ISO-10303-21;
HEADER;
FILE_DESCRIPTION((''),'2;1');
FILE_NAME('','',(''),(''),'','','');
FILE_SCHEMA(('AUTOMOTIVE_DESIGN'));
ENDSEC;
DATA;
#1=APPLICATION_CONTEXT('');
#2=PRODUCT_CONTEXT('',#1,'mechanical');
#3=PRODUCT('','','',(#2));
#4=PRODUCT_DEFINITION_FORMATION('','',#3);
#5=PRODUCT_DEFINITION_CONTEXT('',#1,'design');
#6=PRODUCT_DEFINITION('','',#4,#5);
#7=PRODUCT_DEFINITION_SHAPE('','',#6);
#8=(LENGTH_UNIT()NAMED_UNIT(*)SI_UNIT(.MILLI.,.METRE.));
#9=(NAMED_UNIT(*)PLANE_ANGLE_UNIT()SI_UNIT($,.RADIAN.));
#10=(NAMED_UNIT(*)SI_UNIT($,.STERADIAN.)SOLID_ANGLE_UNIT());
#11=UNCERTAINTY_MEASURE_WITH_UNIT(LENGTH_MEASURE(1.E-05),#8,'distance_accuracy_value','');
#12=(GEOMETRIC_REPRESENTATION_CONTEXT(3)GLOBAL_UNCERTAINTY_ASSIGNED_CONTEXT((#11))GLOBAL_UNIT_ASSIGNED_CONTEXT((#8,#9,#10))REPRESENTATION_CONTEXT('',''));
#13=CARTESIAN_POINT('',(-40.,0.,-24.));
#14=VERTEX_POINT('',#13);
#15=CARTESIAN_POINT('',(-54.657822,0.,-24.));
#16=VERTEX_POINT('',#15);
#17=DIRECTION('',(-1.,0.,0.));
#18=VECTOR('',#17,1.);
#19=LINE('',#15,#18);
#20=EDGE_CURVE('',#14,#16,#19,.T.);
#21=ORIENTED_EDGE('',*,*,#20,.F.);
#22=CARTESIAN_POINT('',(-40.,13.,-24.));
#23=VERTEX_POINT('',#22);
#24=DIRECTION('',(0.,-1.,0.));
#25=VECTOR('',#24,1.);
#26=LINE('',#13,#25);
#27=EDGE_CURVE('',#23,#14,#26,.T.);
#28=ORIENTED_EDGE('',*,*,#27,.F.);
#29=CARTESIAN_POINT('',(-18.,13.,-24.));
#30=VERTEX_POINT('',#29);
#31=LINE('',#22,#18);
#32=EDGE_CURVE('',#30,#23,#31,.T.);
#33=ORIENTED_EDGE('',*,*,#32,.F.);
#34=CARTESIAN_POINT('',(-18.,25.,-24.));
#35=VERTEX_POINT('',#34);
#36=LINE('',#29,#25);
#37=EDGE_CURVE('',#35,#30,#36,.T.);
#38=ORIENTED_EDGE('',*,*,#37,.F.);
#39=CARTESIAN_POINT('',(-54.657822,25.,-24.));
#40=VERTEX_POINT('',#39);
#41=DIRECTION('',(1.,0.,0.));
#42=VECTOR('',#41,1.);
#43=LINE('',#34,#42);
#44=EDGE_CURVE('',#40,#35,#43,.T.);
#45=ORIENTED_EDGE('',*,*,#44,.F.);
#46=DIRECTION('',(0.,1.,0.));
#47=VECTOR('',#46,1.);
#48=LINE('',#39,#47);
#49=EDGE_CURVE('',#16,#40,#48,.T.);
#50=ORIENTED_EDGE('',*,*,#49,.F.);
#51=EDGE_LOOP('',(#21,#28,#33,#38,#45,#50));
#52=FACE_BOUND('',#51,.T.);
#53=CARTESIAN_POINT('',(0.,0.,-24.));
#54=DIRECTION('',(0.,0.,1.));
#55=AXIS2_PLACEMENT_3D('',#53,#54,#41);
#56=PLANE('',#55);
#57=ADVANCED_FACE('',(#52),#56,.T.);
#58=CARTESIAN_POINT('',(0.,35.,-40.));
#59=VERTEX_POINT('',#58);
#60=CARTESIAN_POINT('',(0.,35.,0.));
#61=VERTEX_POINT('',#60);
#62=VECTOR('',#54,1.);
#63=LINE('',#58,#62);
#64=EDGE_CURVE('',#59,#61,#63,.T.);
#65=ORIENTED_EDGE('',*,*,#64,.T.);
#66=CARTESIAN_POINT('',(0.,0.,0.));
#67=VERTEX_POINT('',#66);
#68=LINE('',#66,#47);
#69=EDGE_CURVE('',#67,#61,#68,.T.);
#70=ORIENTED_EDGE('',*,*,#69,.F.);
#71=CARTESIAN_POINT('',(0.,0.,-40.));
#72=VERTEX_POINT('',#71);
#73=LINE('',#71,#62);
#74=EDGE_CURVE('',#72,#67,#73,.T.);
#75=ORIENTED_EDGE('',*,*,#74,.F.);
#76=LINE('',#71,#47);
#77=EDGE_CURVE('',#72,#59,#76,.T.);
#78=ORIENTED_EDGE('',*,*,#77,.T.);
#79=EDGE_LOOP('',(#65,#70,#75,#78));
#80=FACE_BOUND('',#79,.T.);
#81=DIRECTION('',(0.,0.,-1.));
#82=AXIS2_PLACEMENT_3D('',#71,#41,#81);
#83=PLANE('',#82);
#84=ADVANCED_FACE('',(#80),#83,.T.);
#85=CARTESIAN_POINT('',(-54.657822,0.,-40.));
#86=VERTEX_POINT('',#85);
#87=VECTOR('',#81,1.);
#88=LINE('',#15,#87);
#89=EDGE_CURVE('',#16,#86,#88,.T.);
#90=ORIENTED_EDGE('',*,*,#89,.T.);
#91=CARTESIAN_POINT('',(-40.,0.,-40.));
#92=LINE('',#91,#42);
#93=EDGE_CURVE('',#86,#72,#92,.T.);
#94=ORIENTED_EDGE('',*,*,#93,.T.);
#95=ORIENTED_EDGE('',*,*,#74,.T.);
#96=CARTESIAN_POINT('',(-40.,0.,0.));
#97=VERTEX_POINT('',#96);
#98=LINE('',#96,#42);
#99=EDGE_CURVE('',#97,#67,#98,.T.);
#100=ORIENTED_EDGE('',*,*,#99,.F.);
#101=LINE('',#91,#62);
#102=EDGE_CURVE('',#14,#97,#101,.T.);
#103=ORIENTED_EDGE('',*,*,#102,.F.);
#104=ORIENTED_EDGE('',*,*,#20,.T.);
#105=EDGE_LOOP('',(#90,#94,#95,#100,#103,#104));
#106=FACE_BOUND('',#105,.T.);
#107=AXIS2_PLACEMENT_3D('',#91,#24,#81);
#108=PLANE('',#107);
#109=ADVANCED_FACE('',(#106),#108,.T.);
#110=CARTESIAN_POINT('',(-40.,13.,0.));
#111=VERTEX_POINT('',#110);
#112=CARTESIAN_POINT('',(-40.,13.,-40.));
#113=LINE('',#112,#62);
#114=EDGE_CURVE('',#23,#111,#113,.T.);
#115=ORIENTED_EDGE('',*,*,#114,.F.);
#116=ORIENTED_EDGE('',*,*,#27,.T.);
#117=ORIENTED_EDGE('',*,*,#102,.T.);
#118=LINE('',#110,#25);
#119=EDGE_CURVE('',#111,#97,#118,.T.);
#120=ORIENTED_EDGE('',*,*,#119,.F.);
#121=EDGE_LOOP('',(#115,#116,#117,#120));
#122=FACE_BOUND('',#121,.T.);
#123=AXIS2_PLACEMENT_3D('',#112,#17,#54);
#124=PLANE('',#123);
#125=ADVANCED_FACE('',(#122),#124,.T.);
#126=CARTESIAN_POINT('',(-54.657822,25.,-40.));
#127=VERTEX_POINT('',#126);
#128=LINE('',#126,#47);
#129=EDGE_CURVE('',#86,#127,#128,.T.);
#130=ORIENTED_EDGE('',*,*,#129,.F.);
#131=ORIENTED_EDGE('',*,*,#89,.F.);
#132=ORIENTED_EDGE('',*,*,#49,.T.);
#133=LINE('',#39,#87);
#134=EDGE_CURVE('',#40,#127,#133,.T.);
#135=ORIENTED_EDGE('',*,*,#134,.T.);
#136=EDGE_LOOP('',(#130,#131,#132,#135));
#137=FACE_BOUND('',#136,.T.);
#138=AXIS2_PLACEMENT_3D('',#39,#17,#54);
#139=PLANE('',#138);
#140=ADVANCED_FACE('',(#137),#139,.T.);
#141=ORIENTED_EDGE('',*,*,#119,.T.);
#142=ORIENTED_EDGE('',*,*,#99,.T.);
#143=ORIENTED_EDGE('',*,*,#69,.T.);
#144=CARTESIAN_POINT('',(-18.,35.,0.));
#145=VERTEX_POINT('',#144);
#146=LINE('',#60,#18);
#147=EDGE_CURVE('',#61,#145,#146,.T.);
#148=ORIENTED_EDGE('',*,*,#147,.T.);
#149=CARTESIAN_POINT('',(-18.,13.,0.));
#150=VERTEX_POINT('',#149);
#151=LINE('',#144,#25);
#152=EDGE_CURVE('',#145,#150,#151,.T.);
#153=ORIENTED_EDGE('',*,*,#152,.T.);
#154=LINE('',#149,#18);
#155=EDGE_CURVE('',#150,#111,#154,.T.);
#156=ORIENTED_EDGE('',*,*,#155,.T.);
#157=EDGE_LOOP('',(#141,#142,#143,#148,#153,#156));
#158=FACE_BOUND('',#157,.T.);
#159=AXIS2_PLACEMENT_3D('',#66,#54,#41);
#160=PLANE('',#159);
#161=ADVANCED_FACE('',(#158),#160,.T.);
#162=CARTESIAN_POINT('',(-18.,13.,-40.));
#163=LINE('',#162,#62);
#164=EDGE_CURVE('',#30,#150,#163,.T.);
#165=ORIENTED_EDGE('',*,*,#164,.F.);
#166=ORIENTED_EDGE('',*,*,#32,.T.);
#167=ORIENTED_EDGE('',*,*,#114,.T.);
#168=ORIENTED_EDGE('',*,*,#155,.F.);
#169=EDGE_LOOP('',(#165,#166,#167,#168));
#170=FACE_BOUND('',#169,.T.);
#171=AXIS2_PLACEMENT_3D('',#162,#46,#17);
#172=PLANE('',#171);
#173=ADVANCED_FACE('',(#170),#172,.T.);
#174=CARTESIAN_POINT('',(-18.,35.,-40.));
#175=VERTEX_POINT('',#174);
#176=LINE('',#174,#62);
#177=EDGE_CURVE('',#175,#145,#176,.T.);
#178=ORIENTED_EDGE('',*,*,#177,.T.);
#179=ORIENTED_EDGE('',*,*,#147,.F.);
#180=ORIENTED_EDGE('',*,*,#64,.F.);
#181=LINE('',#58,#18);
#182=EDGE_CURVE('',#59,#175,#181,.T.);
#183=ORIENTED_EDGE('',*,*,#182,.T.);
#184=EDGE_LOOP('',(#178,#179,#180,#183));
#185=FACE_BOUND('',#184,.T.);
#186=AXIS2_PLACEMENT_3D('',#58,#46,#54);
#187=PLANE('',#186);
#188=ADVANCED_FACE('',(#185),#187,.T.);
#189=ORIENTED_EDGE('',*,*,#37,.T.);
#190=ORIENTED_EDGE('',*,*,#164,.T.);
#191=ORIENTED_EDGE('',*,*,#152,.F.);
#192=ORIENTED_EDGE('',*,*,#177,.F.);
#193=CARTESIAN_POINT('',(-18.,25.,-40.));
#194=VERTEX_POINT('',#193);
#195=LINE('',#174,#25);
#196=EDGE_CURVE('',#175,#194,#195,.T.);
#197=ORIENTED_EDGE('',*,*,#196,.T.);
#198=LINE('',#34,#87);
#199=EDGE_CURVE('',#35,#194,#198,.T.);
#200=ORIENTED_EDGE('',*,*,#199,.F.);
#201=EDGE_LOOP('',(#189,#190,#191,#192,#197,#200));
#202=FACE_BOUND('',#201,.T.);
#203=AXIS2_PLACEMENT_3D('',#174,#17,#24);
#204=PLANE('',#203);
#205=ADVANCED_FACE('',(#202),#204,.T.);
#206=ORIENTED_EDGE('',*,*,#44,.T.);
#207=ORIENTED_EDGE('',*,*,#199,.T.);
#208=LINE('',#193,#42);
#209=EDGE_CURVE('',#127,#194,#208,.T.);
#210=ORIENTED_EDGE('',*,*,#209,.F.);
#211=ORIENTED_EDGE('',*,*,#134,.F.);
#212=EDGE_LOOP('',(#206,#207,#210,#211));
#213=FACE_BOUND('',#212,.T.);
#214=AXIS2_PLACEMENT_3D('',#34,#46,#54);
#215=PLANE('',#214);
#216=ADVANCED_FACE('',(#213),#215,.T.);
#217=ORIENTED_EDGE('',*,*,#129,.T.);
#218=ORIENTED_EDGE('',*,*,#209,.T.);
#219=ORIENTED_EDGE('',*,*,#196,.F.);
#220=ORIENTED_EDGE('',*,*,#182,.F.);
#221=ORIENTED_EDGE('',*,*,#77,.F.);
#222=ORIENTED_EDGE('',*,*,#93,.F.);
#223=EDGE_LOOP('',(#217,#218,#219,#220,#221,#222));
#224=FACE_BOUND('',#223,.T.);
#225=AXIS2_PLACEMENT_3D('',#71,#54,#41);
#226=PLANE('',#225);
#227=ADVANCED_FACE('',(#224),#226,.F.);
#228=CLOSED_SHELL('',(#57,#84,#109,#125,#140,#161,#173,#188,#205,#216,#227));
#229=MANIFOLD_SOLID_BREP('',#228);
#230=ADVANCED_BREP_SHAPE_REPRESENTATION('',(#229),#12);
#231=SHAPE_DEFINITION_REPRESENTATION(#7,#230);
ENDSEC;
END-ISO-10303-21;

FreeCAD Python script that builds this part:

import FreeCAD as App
import Part
import Sketcher


def add_polygon(sketch, points):
    """Adds a closed chain of lines whose ends are joined by coincident constraints."""
    first, n = sketch.GeometryCount, len(points)
    for a, b in zip(points, points[1:] + points[:1]):
        sketch.addGeometry(Part.LineSegment(App.Vector(*a, 0), App.Vector(*b, 0)), False)
    for i in range(n):
        sketch.addConstraint(Sketcher.Constraint("Coincident", first + i, 2, first + (i + 1) % n, 1))

doc = App.newDocument("Part")
body = doc.addObject("PartDesign::Body", "Body")

# Sketch on XY plane
sketch1 = body.newObject("Sketcher::SketchObject", "Sketch")
sketch1.AttachmentSupport = (doc.getObject("XY_Plane"), [""])
sketch1.MapMode = "FlatFace"
add_polygon(sketch1, [(0, 0), (0, 35), (-18, 35), (-18, 13), (-40, 13), (-40, 0)])  # lines 0-5
sketch1.addConstraint(Sketcher.Constraint("Vertical", 0))
sketch1.addConstraint(Sketcher.Constraint("Horizontal", 1))
sketch1.addConstraint(Sketcher.Constraint("Vertical", 2))
sketch1.addConstraint(Sketcher.Constraint("Horizontal", 3))
sketch1.addConstraint(Sketcher.Constraint("Vertical", 4))
sketch1.addConstraint(Sketcher.Constraint("Horizontal", 5))
sketch1.addConstraint(Sketcher.Constraint("Coincident", 5, 2, -1, 1))
sketch1.addConstraint(Sketcher.Constraint("Equal", 3, 2))
sketch1.addConstraint(Sketcher.Constraint("DistanceX", 1, 2, 1, 1, 18.0))
sketch1.addConstraint(Sketcher.Constraint("DistanceX", 3, 2, 3, 1, 22.0))
sketch1.addConstraint(Sketcher.Constraint("DistanceY", 0, 1, 0, 2, 35.0))
pad1 = body.newObject("PartDesign::Pad", "Pad")
pad1.Profile = sketch1
pad1.Length = 40
pad1.Reversed = True

# Sketch on XY plane
sketch2 = body.newObject("Sketcher::SketchObject", "Sketch001")
sketch2.AttachmentSupport = (doc.getObject("XY_Plane"), [""])
sketch2.MapMode = "FlatFace"
sketch2.AttachmentOffset = App.Placement(App.Vector(0, 0, -40), App.Rotation())
add_polygon(sketch2, [(-18, 25), (-18, 13), (-40, 13), (-40, 0), (-55, 0), (-55, 25)])  # lines 0-5
sketch2.addConstraint(Sketcher.Constraint("Vertical", 0))
sketch2.addConstraint(Sketcher.Constraint("Horizontal", 1))
sketch2.addConstraint(Sketcher.Constraint("Vertical", 2))
sketch2.addConstraint(Sketcher.Constraint("Horizontal", 3))
sketch2.addConstraint(Sketcher.Constraint("Vertical", 4))
sketch2.addConstraint(Sketcher.Constraint("Horizontal", 5))
sketch2.addConstraint(Sketcher.Constraint("PointOnObject", 2, 2, -1))
sketch2.addConstraint(Sketcher.Constraint("DistanceX", 1, 2, 1, 1, 22.0))
sketch2.addConstraint(Sketcher.Constraint("DistanceY", 0, 2, 0, 1, 12.0))
sketch2.addConstraint(Sketcher.Constraint("DistanceY", 2, 2, 2, 1, 13.0))
sketch2.addConstraint(Sketcher.Constraint("DistanceX", 0, 2, -1, 1, 18.0))
sketch2.addConstraint(Sketcher.Constraint("DistanceX", 3, 2, 3, 1, 14.657822))
pad2 = body.newObject("PartDesign::Pad", "Pad001")
pad2.Profile = sketch2
pad2.Length = 16

doc.recompute()
